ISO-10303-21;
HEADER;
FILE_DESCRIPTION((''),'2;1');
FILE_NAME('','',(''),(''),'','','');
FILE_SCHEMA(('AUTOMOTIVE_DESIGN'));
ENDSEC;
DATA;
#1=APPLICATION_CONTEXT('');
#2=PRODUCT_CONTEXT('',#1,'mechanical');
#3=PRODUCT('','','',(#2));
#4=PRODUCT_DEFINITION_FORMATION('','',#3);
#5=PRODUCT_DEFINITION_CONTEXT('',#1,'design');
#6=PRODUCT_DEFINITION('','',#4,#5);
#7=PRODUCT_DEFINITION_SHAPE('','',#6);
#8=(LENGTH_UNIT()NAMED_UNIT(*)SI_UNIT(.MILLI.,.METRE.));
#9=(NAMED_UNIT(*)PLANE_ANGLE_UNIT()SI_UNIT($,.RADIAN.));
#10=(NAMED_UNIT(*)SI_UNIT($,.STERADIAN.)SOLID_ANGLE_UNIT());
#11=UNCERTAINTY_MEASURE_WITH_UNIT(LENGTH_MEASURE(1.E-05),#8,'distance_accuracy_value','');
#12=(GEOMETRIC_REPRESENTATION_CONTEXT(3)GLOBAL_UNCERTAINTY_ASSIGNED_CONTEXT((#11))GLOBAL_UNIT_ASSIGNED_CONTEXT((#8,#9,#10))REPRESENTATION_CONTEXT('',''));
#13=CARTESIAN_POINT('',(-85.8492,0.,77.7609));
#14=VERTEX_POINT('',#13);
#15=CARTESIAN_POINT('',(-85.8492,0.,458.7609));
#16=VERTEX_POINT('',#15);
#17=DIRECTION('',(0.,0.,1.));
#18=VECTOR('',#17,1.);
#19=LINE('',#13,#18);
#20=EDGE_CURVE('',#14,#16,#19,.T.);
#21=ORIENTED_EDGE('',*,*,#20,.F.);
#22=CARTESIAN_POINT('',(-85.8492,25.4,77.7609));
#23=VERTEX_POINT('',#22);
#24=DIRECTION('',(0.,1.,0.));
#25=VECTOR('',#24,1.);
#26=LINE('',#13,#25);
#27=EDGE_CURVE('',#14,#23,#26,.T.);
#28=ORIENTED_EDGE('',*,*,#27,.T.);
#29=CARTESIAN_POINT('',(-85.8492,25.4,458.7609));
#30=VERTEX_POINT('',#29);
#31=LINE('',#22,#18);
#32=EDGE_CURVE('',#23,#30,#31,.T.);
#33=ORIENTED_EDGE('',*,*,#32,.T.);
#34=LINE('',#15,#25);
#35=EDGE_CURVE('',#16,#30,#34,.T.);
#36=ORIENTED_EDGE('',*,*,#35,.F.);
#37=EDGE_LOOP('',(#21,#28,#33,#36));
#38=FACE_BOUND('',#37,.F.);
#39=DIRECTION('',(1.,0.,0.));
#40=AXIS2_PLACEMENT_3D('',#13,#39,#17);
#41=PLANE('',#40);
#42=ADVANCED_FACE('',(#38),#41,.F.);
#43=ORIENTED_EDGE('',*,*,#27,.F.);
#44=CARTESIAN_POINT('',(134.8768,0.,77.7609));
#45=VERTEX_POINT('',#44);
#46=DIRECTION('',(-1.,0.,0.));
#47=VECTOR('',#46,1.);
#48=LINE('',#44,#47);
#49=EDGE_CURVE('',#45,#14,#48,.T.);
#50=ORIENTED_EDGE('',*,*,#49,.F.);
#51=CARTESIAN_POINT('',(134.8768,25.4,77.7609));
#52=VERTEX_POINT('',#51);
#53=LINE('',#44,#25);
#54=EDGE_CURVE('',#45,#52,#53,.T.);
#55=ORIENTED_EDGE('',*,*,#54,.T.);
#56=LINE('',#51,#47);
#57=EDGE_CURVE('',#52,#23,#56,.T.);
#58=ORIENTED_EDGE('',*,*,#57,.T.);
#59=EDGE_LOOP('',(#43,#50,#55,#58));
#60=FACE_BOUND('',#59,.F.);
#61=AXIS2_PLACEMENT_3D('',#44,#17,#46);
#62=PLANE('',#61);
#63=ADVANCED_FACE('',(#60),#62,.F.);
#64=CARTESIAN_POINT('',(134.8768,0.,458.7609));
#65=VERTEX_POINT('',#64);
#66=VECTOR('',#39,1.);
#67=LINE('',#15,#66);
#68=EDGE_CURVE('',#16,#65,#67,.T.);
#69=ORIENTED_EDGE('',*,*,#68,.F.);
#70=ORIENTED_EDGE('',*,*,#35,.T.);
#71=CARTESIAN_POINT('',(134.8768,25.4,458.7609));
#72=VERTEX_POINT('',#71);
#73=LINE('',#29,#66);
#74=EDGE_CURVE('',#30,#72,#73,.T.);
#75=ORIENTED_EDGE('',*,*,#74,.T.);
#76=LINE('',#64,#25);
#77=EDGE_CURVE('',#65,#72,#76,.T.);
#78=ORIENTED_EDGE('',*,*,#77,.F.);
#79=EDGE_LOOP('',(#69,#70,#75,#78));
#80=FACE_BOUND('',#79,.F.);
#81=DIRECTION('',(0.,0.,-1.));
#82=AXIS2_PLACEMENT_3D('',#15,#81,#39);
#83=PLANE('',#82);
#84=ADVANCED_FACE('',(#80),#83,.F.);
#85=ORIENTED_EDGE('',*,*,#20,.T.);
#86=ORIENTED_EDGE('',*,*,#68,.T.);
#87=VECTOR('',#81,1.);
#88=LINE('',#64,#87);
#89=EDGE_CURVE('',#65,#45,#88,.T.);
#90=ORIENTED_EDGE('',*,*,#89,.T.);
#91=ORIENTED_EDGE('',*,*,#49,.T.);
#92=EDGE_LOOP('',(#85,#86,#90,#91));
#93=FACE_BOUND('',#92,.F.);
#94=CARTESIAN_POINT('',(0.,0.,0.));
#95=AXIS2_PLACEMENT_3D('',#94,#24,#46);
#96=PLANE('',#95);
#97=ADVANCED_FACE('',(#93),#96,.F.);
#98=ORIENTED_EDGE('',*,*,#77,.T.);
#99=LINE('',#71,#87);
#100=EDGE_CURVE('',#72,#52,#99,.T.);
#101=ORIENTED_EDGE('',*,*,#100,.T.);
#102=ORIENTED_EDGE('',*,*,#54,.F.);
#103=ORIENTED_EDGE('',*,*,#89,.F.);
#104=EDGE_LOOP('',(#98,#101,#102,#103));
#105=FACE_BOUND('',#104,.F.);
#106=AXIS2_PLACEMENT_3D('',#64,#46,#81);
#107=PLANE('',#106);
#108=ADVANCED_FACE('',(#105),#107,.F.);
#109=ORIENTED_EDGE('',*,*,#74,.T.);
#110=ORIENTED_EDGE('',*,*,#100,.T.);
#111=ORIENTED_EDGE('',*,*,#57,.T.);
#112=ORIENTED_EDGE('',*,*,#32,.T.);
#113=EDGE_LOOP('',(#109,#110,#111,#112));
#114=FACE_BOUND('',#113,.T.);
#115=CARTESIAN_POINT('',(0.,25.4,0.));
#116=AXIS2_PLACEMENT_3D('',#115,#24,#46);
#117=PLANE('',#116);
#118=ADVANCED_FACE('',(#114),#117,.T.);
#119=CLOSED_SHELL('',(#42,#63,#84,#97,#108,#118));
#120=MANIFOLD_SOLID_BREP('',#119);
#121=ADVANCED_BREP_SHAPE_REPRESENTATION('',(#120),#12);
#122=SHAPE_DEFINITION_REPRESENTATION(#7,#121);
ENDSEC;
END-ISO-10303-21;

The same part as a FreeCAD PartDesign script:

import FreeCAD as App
import Part
import Sketcher
from FreeCAD import Vector
Q = App.Units.Quantity

doc = App.newDocument("Part")
body = doc.addObject("PartDesign::Body", "Body")

sketch1 = doc.addObject("Sketcher::SketchObject", "Sketch")
body.addObject(sketch1)
sketch1.AttachmentSupport = (doc.XZ_Plane, [""])
sketch1.MapMode = "FlatFace"
sketch1.addGeometry([
    Part.LineSegment(Vector(134.8768, 458.7609, 0), Vector(134.8768, 77.7609, 0)),
    Part.LineSegment(Vector(134.8768, 77.7609, 0), Vector(-85.8492, 77.7609, 0)),
    Part.LineSegment(Vector(-85.8492, 77.7609, 0), Vector(-85.8492, 458.7609, 0)),
    Part.LineSegment(Vector(-85.8492, 458.7609, 0), Vector(134.8768, 458.7609, 0)),
], False)
sketch1.addConstraint([
    Sketcher.Constraint("Coincident", 0, 2, 1, 1),
    Sketcher.Constraint("Coincident", 1, 2, 2, 1),
    Sketcher.Constraint("Coincident", 2, 2, 3, 1),
    Sketcher.Constraint("Coincident", 3, 2, 0, 1),
    Sketcher.Constraint("Vertical", 0),
    Sketcher.Constraint("Horizontal", 1),
    Sketcher.Constraint("Vertical", 2),
    Sketcher.Constraint("Horizontal", 3),
    Sketcher.Constraint("DistanceY", 0, 2, 0, 1, Q("15 in")),
    Sketcher.Constraint("DistanceX", 1, 2, 1, 1, Q("8.69 in")),
    Sketcher.Constraint("DistanceX", -1, 1, 0, 2, Q("5.3101 in")),
    Sketcher.Constraint("DistanceY", -1, 1, 0, 2, 77.761),
])
pad1 = doc.addObject("PartDesign::Pad", "Pad")
body.addObject(pad1)
pad1.Profile = sketch1
pad1.Length = Q("1 in")
pad1.Reversed = True

doc.recompute()
